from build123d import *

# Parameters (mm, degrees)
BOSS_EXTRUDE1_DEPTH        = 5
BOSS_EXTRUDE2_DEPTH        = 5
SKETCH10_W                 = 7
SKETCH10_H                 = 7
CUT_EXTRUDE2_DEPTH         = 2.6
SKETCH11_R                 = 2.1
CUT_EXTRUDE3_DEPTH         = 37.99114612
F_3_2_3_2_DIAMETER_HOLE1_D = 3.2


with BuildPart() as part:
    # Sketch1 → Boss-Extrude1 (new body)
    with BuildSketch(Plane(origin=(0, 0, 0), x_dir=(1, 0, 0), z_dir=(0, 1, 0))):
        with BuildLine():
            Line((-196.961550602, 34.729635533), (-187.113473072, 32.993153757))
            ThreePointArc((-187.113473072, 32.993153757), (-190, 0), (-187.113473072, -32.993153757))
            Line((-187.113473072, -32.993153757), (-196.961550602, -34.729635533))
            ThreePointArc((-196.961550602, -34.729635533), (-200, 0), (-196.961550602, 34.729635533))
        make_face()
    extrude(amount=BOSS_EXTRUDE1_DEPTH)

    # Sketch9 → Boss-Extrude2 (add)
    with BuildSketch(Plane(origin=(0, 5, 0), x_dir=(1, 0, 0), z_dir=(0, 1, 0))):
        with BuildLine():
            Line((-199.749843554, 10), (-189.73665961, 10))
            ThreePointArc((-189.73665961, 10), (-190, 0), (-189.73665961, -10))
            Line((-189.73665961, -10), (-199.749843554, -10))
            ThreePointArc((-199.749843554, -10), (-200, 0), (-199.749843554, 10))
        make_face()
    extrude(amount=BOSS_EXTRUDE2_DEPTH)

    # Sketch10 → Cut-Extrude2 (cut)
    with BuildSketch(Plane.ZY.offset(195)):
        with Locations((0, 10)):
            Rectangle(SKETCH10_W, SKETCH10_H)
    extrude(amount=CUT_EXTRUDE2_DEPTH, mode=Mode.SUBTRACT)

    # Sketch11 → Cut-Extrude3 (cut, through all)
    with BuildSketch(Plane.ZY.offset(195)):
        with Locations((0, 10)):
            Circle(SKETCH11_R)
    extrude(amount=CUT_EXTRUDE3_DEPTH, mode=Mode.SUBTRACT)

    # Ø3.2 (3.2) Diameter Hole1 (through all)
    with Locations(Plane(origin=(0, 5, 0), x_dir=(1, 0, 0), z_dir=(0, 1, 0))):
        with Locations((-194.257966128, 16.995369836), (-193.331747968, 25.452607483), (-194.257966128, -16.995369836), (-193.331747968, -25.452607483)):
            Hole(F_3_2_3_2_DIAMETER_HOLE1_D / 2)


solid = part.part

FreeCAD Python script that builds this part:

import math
import FreeCAD as App
import Part
import Sketcher
Q = App.Units.Quantity


def add_polygon(sketch, points):
    """Adds a closed chain of lines whose ends are joined by coincident constraints."""
    first, n = sketch.GeometryCount, len(points)
    for a, b in zip(points, points[1:] + points[:1]):
        sketch.addGeometry(Part.LineSegment(App.Vector(*a, 0), App.Vector(*b, 0)), False)
    for i in range(n):
        sketch.addConstraint(Sketcher.Constraint("Coincident", first + i, 2, first + (i + 1) % n, 1))

doc = App.newDocument("Part")
params = doc.addObject("Spreadsheet::Sheet", "Params")
for row, (alias, value) in enumerate([
    ("sketch1_radius", "200 mm"),
    ("sketch1_radius2", "190 mm"),
    ("pad1_length", "5 mm"),
    ("sketch2_radius", "200 mm"),
    ("sketch2_radius2", "190 mm"),
    ("pad2_length", "5 mm"),
    ("sketch3_width", "7 mm"),
    ("pocket1_length", "2.6 mm"),
    ("sketch4_diameter", "4.2 mm"),
    ("sketch5_diameter", "3.2 mm"),
    ("hole_diameter", "3.2 mm"),
], start=1):
    params.set(f"A{row}", alias)
    params.set(f"B{row}", "=" + value)
    params.setAlias(f"B{row}", alias)

body = doc.addObject("PartDesign::Body", "Body")

sketch1 = doc.addObject("Sketcher::SketchObject", "Sketch")
body.addObject(sketch1)
sketch1.AttachmentSupport = (doc.XZ_Plane, [""])
sketch1.MapMode = "FlatFace"
sketch1.addGeometry(Part.LineSegment(App.Vector(-187, -33, 0), App.Vector(-197, -35, 0)), False)
sketch1.addGeometry(Part.ArcOfCircle(Part.Circle(App.Vector(0, 0, 0), App.Vector(0, 0, 1), 200), math.radians(170), math.radians(190)), False)
sketch1.addGeometry(Part.LineSegment(App.Vector(-197, 35, 0), App.Vector(-187, 33, 0)), False)
sketch1.addGeometry(Part.ArcOfCircle(Part.Circle(App.Vector(0, 0, 0), App.Vector(0, 0, 1), 190), math.radians(170), math.radians(190)), False)
sketch1.addConstraint(Sketcher.Constraint("Coincident", 0, 2, 1, 2))
sketch1.addConstraint(Sketcher.Constraint("Coincident", 1, 1, 2, 1))
sketch1.addConstraint(Sketcher.Constraint("Coincident", 2, 2, 3, 1))
sketch1.addConstraint(Sketcher.Constraint("Coincident", 3, 2, 0, 1))
sketch1.addConstraint(Sketcher.Constraint("Coincident", 1, 3, -1, 1))
sketch1.addConstraint(Sketcher.Constraint("Coincident", 3, 3, -1, 1))
sketch1.addConstraint(Sketcher.Constraint("Vertical", 0, 2, 1, 1))
sketch1.addConstraint(Sketcher.Constraint("Vertical", 2, 2, 3, 2))
sketch1.addConstraint(Sketcher.Constraint("Radius", 1, Q("200 mm")))
sketch1.addConstraint(Sketcher.Constraint("Radius", 3, Q("190 mm")))
sketch1.addConstraint(Sketcher.Constraint("Angle", 0, Q("-170 deg")))
sketch1.addConstraint(Sketcher.Constraint("DistanceX", 0, 2, -1, 1, Q("196.961551 mm")))
sketch1.setExpression("Constraints[8]", "Params.sketch1_radius")
sketch1.setExpression("Constraints[9]", "Params.sketch1_radius2")
pad1 = doc.addObject("PartDesign::Pad", "Pad")
body.addObject(pad1)
pad1.Profile = sketch1
pad1.setExpression("Length", "Params.pad1_length")
pad1.Reversed = True

sketch2 = doc.addObject("Sketcher::SketchObject", "Sketch001")
body.addObject(sketch2)
sketch2.AttachmentSupport = (doc.XZ_Plane, [""])
sketch2.MapMode = "FlatFace"
sketch2.AttachmentOffset = App.Placement(App.Vector(0, 0, -5), App.Rotation())
sketch2.addGeometry(Part.LineSegment(App.Vector(-190, -10, 0), App.Vector(-200, -10, 0)), False)
sketch2.addGeometry(Part.ArcOfCircle(Part.Circle(App.Vector(0, 0, 0), App.Vector(0, 0, 1), 200), math.radians(177.13), math.radians(182.87)), False)
sketch2.addGeometry(Part.LineSegment(App.Vector(-200, 10, 0), App.Vector(-190, 10, 0)), False)
sketch2.addGeometry(Part.ArcOfCircle(Part.Circle(App.Vector(0, 0, 0), App.Vector(0, 0, 1), 190), math.radians(176.98), math.radians(183.02)), False)
sketch2.addConstraint(Sketcher.Constraint("Coincident", 0, 2, 1, 2))
sketch2.addConstraint(Sketcher.Constraint("Coincident", 1, 1, 2, 1))
sketch2.addConstraint(Sketcher.Constraint("Coincident", 2, 2, 3, 1))
sketch2.addConstraint(Sketcher.Constraint("Coincident", 3, 2, 0, 1))
sketch2.addConstraint(Sketcher.Constraint("Horizontal", 0))
sketch2.addConstraint(Sketcher.Constraint("Horizontal", 2))
sketch2.addConstraint(Sketcher.Constraint("Coincident", 1, 3, -1, 1))
sketch2.addConstraint(Sketcher.Constraint("Coincident", 3, 3, -1, 1))
sketch2.addConstraint(Sketcher.Constraint("Vertical", 0, 2, 1, 1))
sketch2.addConstraint(Sketcher.Constraint("Radius", 1, Q("200 mm")))
sketch2.addConstraint(Sketcher.Constraint("Radius", 3, Q("190 mm")))
sketch2.addConstraint(Sketcher.Constraint("DistanceY", 0, 2, -1, 1, Q("10 mm")))
sketch2.setExpression("Constraints[9]", "Params.sketch2_radius")
sketch2.setExpression("Constraints[10]", "Params.sketch2_radius2")
pad2 = doc.addObject("PartDesign::Pad", "Pad001")
body.addObject(pad2)
pad2.Profile = sketch2
pad2.setExpression("Length", "Params.pad2_length")
pad2.Reversed = True

sketch3 = doc.addObject("Sketcher::SketchObject", "Sketch002")
body.addObject(sketch3)
sketch3.AttachmentSupport = (doc.YZ_Plane, [""])
sketch3.MapMode = "FlatFace"
sketch3.AttachmentOffset = App.Placement(App.Vector(0, 0, -195), App.Rotation())
add_polygon(sketch3, [(14, -4), (6, -4), (6, 4), (14, 4)])
sketch3.addConstraint(Sketcher.Constraint("Horizontal", 0))
sketch3.addConstraint(Sketcher.Constraint("Vertical", 1))
sketch3.addConstraint(Sketcher.Constraint("Horizontal", 2))
sketch3.addConstraint(Sketcher.Constraint("Vertical", 3))
sketch3.addConstraint(Sketcher.Constraint("Equal", 2, 1))
sketch3.addConstraint(Sketcher.Constraint("DistanceX", 0, 2, 0, 1, Q("7 mm")))
sketch3.addConstraint(Sketcher.Constraint("DistanceX", -1, 1, 0, 2, Q("6.5 mm")))
sketch3.addConstraint(Sketcher.Constraint("DistanceY", 0, 2, -1, 1, Q("3.5 mm")))
sketch3.setExpression("Constraints[9]", "Params.sketch3_width")
pocket1 = doc.addObject("PartDesign::Pocket", "Pocket")
body.addObject(pocket1)
pocket1.Profile = sketch3
pocket1.setExpression("Length", "Params.pocket1_length")

sketch4 = doc.addObject("Sketcher::SketchObject", "Sketch003")
body.addObject(sketch4)
sketch4.AttachmentSupport = (doc.YZ_Plane, [""])
sketch4.MapMode = "FlatFace"
sketch4.AttachmentOffset = App.Placement(App.Vector(0, 0, -195), App.Rotation())
sketch4.addGeometry(Part.Circle(App.Vector(10, 0, 0), App.Vector(0, 0, 1), 2.1), False)
sketch4.addConstraint(Sketcher.Constraint("PointOnObject", 0, 3, -1))
sketch4.addConstraint(Sketcher.Constraint("Diameter", 0, Q("4.2 mm")))
sketch4.addConstraint(Sketcher.Constraint("DistanceX", -1, 1, 0, 3, Q("10 mm")))
sketch4.setExpression("Constraints[1]", "Params.sketch4_diameter")
pocket2 = doc.addObject("PartDesign::Pocket", "Pocket001")
body.addObject(pocket2)
pocket2.Profile = sketch4
pocket2.Type = "ThroughAll"

sketch5 = doc.addObject("Sketcher::SketchObject", "Sketch004")
body.addObject(sketch5)
sketch5.AttachmentSupport = (doc.XZ_Plane, [""])
sketch5.MapMode = "FlatFace"
sketch5.AttachmentOffset = App.Placement(App.Vector(0, 0, -5), App.Rotation())
sketch5.addGeometry(Part.Circle(App.Vector(-194.3, -17, 0), App.Vector(0, 0, 1), 1.6), False)
sketch5.addGeometry(Part.Circle(App.Vector(-193.3, -25.5, 0), App.Vector(0, 0, 1), 1.6), False)
sketch5.addGeometry(Part.Circle(App.Vector(-194.3, 17, 0), App.Vector(0, 0, 1), 1.6), False)
sketch5.addGeometry(Part.Circle(App.Vector(-193.3, 25.5, 0), App.Vector(0, 0, 1), 1.6), False)
sketch5.addConstraint(Sketcher.Constraint("Equal", 0, 1))
sketch5.addConstraint(Sketcher.Constraint("Equal", 1, 2))
sketch5.addConstraint(Sketcher.Constraint("Equal", 2, 3))
sketch5.addConstraint(Sketcher.Constraint("Symmetric", 0, 3, 2, 3, -1))
sketch5.addConstraint(Sketcher.Constraint("Symmetric", 1, 3, 3, 3, -1))
sketch5.addConstraint(Sketcher.Constraint("Diameter", 0, Q("3.2 mm")))
sketch5.addConstraint(Sketcher.Constraint("DistanceY", 0, 3, -1, 1, Q("16.99537 mm")))
sketch5.addConstraint(Sketcher.Constraint("DistanceX", 0, 3, 1, 3, Q("0.926218 mm")))
sketch5.addConstraint(Sketcher.Constraint("DistanceX", 0, 3, -1, 1, Q("194.257966 mm")))
sketch5.addConstraint(Sketcher.Constraint("DistanceY", 1, 3, -1, 1, Q("25.452607 mm")))
sketch5.setExpression("Constraints[5]", "Params.sketch5_diameter")
doc.recompute()
hole = doc.addObject("PartDesign::Hole", "Hole")
body.addObject(hole)
hole.Profile = sketch5
hole.ThreadType = "None"
hole.setExpression("Diameter", "Params.hole_diameter")
hole.DepthType = "ThroughAll"
hole.Reversed = True

doc.recompute()
